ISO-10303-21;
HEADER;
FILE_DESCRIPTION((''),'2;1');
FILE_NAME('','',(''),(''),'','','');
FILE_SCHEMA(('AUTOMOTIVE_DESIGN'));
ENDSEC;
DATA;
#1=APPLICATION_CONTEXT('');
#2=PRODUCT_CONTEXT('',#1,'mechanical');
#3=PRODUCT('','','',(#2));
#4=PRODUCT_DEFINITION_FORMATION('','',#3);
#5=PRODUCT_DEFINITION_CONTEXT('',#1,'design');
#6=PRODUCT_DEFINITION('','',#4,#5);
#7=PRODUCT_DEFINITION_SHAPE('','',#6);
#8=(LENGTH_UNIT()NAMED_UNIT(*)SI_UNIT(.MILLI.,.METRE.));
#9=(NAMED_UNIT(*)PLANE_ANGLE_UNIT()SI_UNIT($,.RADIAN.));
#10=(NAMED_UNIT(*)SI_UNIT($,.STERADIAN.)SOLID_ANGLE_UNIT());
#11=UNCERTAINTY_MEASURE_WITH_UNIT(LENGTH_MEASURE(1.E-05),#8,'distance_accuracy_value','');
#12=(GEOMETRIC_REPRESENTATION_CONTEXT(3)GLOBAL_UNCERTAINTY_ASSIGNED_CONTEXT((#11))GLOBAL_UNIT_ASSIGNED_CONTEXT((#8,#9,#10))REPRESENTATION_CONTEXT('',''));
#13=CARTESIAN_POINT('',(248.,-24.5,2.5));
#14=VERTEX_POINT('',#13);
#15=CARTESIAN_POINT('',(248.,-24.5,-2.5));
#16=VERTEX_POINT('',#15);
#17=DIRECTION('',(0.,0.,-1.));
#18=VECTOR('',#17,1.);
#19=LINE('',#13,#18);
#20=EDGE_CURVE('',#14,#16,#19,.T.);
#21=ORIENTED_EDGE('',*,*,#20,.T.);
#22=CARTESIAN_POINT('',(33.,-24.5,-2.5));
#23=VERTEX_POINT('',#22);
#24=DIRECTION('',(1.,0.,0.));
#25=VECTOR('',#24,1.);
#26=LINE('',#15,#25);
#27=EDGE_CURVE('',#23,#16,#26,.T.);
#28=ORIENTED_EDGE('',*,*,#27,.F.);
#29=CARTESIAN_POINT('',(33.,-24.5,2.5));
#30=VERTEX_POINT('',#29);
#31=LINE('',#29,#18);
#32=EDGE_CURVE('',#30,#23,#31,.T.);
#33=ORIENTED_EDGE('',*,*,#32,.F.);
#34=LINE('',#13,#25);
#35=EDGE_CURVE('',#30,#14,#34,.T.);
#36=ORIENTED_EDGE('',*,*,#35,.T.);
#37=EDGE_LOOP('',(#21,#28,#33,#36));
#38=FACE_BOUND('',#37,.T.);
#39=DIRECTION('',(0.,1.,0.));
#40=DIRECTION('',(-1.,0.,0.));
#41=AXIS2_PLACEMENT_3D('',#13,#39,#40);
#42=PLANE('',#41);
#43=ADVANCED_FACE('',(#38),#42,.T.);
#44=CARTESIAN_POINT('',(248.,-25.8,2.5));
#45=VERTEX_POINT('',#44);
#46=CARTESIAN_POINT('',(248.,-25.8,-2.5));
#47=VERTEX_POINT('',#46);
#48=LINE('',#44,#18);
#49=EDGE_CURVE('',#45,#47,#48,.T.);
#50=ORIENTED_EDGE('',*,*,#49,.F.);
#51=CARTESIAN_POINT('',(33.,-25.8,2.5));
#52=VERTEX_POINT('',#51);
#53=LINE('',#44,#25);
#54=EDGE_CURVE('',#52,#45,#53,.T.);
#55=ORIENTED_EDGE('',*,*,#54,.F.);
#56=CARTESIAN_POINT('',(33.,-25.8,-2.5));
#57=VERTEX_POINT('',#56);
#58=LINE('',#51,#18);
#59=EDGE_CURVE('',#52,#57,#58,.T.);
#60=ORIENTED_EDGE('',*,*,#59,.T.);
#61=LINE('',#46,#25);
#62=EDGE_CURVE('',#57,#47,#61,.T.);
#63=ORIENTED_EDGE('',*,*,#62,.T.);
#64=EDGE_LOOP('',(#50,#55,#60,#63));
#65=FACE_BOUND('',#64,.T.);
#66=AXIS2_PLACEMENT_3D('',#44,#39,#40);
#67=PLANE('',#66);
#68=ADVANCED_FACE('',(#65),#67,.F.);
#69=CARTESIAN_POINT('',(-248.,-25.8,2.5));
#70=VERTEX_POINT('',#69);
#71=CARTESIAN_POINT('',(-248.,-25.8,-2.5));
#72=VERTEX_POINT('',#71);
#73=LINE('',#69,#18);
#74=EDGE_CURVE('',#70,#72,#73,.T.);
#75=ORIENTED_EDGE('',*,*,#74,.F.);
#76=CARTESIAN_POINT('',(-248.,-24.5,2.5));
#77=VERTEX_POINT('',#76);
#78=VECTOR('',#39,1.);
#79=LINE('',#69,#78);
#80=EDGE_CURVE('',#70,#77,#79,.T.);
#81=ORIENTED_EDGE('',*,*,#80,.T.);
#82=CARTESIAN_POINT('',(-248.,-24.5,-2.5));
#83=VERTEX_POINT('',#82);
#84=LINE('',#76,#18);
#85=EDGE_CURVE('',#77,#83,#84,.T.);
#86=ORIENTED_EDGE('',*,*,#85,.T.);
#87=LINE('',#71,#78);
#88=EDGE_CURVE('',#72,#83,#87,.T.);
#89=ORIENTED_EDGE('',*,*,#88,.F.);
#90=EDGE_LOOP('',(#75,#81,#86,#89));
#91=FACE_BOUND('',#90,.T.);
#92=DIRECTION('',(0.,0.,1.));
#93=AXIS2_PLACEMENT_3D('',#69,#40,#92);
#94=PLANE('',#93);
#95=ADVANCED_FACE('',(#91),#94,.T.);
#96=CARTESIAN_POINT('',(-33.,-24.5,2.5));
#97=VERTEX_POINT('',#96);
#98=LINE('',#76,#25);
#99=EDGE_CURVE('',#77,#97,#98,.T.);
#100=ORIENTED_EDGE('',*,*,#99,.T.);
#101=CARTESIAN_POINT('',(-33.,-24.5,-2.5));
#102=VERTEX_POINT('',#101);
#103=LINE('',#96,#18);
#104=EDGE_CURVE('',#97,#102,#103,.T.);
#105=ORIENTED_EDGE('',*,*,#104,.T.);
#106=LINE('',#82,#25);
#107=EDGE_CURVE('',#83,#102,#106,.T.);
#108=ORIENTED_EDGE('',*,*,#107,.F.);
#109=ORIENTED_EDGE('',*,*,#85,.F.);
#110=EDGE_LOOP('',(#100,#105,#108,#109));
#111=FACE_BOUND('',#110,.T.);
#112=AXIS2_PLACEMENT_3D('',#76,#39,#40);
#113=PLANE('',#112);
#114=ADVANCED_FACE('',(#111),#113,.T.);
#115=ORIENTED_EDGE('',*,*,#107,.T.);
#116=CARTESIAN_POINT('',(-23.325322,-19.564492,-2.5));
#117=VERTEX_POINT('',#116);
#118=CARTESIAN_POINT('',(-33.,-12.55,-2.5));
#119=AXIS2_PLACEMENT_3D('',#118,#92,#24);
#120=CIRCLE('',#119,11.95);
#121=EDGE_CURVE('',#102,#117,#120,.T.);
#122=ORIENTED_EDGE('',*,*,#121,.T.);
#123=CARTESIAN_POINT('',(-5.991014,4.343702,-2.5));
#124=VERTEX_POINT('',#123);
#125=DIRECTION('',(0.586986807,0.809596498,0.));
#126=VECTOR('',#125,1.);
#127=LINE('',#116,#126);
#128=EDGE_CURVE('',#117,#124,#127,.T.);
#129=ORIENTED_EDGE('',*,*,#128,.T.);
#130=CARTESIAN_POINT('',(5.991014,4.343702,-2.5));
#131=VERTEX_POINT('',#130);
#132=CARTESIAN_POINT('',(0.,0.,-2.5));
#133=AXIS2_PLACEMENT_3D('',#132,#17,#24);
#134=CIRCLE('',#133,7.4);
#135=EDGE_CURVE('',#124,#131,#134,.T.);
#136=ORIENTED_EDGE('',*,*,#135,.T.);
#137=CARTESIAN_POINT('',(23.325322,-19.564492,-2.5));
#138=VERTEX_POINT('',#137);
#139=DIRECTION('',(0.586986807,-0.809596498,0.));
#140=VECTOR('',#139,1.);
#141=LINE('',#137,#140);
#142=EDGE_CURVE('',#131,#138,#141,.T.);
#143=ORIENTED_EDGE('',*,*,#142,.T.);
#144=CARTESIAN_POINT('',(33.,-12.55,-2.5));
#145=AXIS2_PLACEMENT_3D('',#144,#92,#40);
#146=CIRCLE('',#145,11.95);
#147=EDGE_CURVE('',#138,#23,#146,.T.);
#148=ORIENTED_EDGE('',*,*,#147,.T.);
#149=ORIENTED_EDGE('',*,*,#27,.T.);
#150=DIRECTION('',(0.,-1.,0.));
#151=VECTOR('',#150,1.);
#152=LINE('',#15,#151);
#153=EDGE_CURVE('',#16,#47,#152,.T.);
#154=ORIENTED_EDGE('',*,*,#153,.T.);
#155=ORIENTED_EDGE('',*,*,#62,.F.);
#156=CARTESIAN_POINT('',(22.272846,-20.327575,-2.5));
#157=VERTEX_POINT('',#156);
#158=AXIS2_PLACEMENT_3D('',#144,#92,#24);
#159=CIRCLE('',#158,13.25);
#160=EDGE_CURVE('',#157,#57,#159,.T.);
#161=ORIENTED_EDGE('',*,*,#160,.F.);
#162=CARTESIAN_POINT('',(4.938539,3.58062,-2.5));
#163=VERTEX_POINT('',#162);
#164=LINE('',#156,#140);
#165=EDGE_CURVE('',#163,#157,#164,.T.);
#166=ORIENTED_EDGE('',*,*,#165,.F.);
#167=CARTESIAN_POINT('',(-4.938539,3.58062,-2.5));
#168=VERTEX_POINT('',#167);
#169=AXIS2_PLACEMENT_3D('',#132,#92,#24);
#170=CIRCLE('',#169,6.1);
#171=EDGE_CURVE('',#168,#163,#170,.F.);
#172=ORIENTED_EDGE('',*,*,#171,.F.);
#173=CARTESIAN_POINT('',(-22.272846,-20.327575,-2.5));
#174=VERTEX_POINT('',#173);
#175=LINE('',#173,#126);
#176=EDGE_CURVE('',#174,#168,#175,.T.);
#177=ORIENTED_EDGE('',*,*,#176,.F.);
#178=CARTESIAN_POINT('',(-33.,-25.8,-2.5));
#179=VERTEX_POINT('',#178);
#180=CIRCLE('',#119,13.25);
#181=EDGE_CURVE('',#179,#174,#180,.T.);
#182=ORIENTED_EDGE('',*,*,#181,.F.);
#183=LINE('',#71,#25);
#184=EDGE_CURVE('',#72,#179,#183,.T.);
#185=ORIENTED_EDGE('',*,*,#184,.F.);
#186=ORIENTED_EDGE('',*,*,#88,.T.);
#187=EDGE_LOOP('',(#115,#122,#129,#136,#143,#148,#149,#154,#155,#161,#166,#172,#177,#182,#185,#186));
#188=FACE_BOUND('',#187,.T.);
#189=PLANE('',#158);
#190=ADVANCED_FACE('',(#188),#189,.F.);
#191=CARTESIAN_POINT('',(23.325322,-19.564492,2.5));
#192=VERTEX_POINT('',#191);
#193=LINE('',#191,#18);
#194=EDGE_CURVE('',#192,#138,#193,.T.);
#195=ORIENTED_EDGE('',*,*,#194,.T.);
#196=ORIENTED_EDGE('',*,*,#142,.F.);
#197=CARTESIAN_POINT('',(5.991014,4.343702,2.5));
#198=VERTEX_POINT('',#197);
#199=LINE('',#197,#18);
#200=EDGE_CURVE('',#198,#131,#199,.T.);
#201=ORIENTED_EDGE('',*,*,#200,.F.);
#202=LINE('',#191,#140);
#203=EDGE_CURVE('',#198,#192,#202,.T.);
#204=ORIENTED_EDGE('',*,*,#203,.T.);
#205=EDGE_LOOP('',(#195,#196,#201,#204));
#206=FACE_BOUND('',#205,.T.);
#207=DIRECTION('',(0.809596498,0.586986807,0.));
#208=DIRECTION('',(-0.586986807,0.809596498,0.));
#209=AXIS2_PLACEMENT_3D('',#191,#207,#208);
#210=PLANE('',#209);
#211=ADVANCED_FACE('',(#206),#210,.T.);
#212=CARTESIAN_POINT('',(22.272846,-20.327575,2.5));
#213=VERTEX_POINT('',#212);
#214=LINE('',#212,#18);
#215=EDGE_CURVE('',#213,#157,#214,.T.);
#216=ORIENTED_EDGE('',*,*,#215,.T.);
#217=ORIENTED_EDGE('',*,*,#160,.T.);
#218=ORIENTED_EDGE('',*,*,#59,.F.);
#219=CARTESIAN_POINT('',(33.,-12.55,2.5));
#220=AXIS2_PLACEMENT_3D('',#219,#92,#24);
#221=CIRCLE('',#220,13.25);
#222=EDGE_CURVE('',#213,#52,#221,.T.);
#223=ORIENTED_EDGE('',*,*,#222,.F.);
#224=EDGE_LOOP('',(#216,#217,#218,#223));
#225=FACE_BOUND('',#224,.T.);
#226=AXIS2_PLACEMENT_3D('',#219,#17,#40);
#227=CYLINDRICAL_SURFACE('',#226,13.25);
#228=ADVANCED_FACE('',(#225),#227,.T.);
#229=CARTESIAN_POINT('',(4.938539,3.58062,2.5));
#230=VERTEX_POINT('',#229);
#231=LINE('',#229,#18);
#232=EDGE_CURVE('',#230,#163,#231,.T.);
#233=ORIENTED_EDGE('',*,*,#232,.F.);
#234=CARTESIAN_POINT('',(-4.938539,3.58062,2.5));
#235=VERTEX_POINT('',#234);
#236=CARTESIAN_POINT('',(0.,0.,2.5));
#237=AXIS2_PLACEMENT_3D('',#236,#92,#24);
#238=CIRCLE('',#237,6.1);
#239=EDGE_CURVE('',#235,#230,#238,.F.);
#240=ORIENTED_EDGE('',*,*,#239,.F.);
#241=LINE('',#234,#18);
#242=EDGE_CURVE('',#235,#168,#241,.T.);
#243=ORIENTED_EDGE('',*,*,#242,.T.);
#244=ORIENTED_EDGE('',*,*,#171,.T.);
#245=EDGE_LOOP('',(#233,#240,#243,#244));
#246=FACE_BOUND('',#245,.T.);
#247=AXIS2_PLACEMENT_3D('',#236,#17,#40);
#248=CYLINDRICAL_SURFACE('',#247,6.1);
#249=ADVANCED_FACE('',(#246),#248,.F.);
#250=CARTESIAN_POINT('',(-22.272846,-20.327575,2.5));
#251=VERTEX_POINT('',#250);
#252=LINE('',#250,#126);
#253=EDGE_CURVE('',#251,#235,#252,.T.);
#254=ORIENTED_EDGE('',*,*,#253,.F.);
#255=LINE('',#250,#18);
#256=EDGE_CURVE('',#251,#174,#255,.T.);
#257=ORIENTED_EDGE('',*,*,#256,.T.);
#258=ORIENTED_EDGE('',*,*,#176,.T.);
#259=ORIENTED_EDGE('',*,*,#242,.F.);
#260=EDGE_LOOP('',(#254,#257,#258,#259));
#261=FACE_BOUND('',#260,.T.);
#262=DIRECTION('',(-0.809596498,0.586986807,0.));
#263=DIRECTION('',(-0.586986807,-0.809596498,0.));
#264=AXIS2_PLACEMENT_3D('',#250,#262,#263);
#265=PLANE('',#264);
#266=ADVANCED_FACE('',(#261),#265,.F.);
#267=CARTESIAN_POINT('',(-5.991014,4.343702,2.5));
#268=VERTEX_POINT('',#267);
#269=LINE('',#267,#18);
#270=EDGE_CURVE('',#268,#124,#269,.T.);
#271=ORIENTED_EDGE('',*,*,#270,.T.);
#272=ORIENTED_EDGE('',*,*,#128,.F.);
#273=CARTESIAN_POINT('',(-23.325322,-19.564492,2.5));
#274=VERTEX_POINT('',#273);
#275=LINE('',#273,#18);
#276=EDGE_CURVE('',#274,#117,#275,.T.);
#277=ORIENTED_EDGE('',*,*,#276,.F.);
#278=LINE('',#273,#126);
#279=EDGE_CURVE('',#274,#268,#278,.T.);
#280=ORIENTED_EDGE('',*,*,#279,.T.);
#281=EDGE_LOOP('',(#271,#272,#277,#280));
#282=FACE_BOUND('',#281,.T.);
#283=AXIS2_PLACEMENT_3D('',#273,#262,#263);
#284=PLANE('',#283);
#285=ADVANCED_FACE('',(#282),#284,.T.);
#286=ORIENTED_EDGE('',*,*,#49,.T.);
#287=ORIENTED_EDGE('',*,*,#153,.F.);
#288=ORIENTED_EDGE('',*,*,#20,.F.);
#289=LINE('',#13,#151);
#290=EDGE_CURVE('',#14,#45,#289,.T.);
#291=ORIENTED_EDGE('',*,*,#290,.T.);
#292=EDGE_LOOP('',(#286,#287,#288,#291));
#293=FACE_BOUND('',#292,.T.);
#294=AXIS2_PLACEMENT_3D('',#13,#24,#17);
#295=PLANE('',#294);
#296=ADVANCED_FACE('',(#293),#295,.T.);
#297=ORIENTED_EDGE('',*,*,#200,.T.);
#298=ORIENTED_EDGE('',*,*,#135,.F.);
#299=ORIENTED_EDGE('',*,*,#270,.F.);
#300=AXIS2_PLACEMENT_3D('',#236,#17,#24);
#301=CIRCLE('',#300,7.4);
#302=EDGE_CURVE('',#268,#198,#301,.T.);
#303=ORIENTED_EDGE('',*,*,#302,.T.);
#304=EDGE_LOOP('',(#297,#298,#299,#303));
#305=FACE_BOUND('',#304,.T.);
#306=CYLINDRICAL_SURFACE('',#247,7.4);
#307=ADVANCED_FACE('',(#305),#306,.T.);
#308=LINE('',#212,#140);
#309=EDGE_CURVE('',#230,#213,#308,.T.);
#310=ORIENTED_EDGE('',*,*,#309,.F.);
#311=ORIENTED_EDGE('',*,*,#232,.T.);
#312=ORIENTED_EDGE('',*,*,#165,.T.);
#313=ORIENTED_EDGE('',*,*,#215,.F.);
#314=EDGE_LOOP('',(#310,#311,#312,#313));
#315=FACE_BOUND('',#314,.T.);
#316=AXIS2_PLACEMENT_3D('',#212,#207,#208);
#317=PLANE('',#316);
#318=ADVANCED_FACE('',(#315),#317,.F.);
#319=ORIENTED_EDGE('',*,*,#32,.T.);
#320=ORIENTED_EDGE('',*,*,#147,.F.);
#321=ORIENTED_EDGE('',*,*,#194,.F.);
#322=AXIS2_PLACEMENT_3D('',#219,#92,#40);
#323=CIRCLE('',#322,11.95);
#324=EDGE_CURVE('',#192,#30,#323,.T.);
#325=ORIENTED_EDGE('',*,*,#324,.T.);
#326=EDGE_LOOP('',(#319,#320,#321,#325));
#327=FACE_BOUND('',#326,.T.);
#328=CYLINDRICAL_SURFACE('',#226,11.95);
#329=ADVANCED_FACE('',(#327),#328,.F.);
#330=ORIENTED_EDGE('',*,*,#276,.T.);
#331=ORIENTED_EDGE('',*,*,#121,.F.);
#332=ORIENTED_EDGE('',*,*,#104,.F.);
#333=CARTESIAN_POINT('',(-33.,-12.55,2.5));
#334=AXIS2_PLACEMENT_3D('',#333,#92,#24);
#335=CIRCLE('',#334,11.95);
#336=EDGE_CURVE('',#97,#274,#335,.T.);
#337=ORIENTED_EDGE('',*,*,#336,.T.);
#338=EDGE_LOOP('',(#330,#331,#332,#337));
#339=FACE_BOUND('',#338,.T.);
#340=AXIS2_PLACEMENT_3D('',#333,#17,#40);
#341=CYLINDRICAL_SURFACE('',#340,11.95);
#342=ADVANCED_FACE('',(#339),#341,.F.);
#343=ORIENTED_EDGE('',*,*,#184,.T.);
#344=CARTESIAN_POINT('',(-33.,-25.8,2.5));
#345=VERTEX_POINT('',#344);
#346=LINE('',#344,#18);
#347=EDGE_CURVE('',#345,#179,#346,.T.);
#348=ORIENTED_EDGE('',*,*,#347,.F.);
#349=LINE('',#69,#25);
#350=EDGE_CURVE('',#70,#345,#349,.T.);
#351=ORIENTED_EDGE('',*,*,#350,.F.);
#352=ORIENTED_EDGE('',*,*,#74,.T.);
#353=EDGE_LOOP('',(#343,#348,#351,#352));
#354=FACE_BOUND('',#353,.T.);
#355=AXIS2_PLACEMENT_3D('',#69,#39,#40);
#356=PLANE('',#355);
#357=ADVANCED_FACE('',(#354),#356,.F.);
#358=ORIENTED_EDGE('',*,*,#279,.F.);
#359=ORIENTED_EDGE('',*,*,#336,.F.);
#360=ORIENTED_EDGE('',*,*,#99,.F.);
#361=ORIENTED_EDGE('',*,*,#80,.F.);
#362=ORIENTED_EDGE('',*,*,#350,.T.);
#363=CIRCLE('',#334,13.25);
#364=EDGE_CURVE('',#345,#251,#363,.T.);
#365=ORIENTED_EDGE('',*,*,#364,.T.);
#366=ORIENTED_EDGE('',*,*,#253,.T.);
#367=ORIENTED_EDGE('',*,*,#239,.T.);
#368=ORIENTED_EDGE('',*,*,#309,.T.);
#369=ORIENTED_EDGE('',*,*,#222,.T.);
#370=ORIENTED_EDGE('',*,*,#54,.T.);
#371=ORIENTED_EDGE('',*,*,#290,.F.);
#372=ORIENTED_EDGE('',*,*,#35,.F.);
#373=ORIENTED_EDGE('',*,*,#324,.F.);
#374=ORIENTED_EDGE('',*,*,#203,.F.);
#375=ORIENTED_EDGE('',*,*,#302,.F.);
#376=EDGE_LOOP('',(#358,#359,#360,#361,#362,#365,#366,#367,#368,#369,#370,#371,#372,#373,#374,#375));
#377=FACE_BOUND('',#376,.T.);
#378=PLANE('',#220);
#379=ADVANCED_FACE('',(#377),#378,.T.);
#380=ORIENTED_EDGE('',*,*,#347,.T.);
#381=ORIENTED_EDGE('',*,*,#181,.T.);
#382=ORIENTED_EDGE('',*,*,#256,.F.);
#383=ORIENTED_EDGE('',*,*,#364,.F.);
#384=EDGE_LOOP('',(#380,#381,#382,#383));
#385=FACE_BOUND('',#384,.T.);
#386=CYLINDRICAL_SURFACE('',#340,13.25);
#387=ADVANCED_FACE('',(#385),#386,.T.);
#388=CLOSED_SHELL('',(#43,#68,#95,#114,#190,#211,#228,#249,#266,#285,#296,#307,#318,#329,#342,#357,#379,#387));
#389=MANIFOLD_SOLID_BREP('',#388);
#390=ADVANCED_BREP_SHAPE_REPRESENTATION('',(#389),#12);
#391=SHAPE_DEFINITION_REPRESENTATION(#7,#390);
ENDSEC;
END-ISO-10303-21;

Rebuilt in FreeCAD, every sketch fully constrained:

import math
import FreeCAD as App
import Part
import Sketcher
from FreeCAD import Vector
Q = App.Units.Quantity

doc = App.newDocument("Part")
body = doc.addObject("PartDesign::Body", "Body")

# Sketch on XY plane
sketch1 = body.newObject("Sketcher::SketchObject", "Sketch")
sketch1.AttachmentSupport = (doc.getObject("XY_Plane"), [""])
sketch1.MapMode = "FlatFace"
sketch1.addGeometry([
    Part.LineSegment(Vector(-33, -24.5, 0), Vector(-248, -24.5, 0)),  # 0
    Part.LineSegment(Vector(-248, -24.5, 0), Vector(-248, -25.8, 0)),  # 1
    Part.LineSegment(Vector(-248, -25.8, 0), Vector(-33, -25.8, 0)),  # 2
    Part.ArcOfCircle(Part.Circle(Vector(-33, -12.5, 0), Vector(0, 0, 1), 13.3), math.radians(-90), math.radians(-36)),  # 3
    Part.LineSegment(Vector(-22.3, -20.3, 0), Vector(-4.9, 3.6, 0)),  # 4
    Part.ArcOfCircle(Part.Circle(Vector(0, 0, 0), Vector(0, 0, 1), 6.1), math.radians(36), math.radians(144)),  # 5
    Part.LineSegment(Vector(4.9, 3.6, 0), Vector(22.3, -20.3, 0)),  # 6
    Part.ArcOfCircle(Part.Circle(Vector(33, -12.5, 0), Vector(0, 0, 1), 13.3), math.radians(-144), math.radians(-90)),  # 7
    Part.LineSegment(Vector(33, -25.8, 0), Vector(248, -25.8, 0)),  # 8
    Part.LineSegment(Vector(248, -25.8, 0), Vector(248, -24.5, 0)),  # 9
    Part.LineSegment(Vector(248, -24.5, 0), Vector(33, -24.5, 0)),  # 10
    Part.ArcOfCircle(Part.Circle(Vector(33, -12.6, 0), Vector(0, 0, 1), 11.9), math.radians(-144), math.radians(-90)),  # 11
    Part.LineSegment(Vector(23.3, -19.6, 0), Vector(6, 4.3, 0)),  # 12
    Part.ArcOfCircle(Part.Circle(Vector(0, 0, 0), Vector(0, 0, 1), 7.4), math.radians(36), math.radians(144)),  # 13
    Part.LineSegment(Vector(-6, 4.3, 0), Vector(-23.3, -19.6, 0)),  # 14
    Part.ArcOfCircle(Part.Circle(Vector(-33, -12.6, 0), Vector(0, 0, 1), 11.9), math.radians(-90), math.radians(-36)),  # 15
], False)
sketch1.addConstraint([
    Sketcher.Constraint("Coincident", 0, 2, 1, 1),
    Sketcher.Constraint("Coincident", 1, 2, 2, 1),
    Sketcher.Constraint("Tangent", 2, 2, 3, 1),
    Sketcher.Constraint("Tangent", 3, 2, 4, 1),
    Sketcher.Constraint("Tangent", 4, 2, 5, 2),
    Sketcher.Constraint("Tangent", 5, 1, 6, 1),
    Sketcher.Constraint("Tangent", 6, 2, 7, 1),
    Sketcher.Constraint("Tangent", 7, 2, 8, 1),
    Sketcher.Constraint("Coincident", 8, 2, 9, 1),
    Sketcher.Constraint("Coincident", 9, 2, 10, 1),
    Sketcher.Constraint("Tangent", 10, 2, 11, 2),
    Sketcher.Constraint("Tangent", 11, 1, 12, 1),
    Sketcher.Constraint("Tangent", 12, 2, 13, 1),
    Sketcher.Constraint("Tangent", 13, 2, 14, 1),
    Sketcher.Constraint("Tangent", 14, 2, 15, 2),
    Sketcher.Constraint("Tangent", 15, 1, 0, 1),
    Sketcher.Constraint("Horizontal", 0),
    Sketcher.Constraint("Vertical", 1),
    Sketcher.Constraint("Horizontal", 2),
    Sketcher.Constraint("Horizontal", 8),
    Sketcher.Constraint("Vertical", 9),
    Sketcher.Constraint("Horizontal", 10),
    Sketcher.Constraint("Coincident", 5, 3, -1, 1),
    Sketcher.Constraint("Coincident", 13, 3, -1, 1),
    Sketcher.Constraint("Coincident", 11, 3, 7, 3),
    Sketcher.Constraint("Coincident", 15, 3, 3, 3),
    Sketcher.Constraint("Equal", 3, 7),
    Sketcher.Constraint("Equal", 11, 15),
    Sketcher.Constraint("Symmetric", 3, 3, 7, 3, -2),
    Sketcher.Constraint("Parallel", 6, 12),
    Sketcher.Constraint("Equal", 2, 8),
    Sketcher.Constraint("Radius", 5, Q("6.1 mm")),
    Sketcher.Constraint("Radius", 13, Q("7.4 mm")),
    Sketcher.Constraint("DistanceX", 0, 2, 0, 1, Q("215 mm")),
    Sketcher.Constraint("Radius", 3, Q("13.25 mm")),
    Sketcher.Constraint("DistanceX", 3, 3, -1, 1, Q("33 mm")),
    Sketcher.Constraint("DistanceY", 0, 2, -1, 1, Q("24.5 mm")),
])
pad1 = body.newObject("PartDesign::Pad", "Pad")
pad1.Profile = sketch1
pad1.Length = 5
pad1.Midplane = True

doc.recompute()
